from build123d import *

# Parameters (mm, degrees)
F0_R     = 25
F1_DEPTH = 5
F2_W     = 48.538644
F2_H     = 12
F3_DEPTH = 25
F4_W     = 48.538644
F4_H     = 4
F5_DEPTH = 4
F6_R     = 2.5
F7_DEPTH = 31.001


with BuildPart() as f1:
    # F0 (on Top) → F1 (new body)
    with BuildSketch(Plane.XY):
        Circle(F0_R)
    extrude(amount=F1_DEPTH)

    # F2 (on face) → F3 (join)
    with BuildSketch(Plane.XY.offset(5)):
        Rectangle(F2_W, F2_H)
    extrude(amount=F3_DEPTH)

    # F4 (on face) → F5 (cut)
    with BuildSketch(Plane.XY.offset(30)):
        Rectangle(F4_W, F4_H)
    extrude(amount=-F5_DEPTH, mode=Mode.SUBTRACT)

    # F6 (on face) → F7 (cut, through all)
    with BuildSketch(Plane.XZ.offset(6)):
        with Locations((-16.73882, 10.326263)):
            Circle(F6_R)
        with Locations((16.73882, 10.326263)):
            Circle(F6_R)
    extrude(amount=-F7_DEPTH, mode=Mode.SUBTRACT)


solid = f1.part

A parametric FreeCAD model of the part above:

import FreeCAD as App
import Part
import Sketcher

V = App.Vector


def add_polygon(sketch, points):
    """Adds a closed chain of lines whose ends are joined by coincident constraints."""
    first, n = sketch.GeometryCount, len(points)
    for a, b in zip(points, points[1:] + points[:1]):
        sketch.addGeometry(Part.LineSegment(App.Vector(*a, 0), App.Vector(*b, 0)), False)
    for i in range(n):
        sketch.addConstraint(Sketcher.Constraint("Coincident", first + i, 2, first + (i + 1) % n, 1))

doc = App.newDocument("Part")
params = doc.addObject("Spreadsheet::Sheet", "Params")
for row, (alias, value) in enumerate([
    ("sketch1_diameter", "50 mm"),
    ("pad1_length", "5 mm"),
    ("sketch2_height", "12 mm"),
    ("pad2_length", "25 mm"),
    ("sketch3_height", "4 mm"),
    ("pocket1_length", "4 mm"),
    ("sketch4_diameter", "5 mm"),
], start=1):
    params.set(f"A{row}", alias)
    params.set(f"B{row}", "=" + value)
    params.setAlias(f"B{row}", alias)

body = doc.addObject("PartDesign::Body", "Body")

sketch1 = body.newObject("Sketcher::SketchObject", "Sketch")
sketch1.AttachmentSupport = (doc.getObject("XY_Plane"), [""])
sketch1.MapMode = "FlatFace"
sketch1.addGeometry(Part.Circle(V(0, 0, 0), V(0, 0, 1), 25), False)
sketch1.addConstraint([
    Sketcher.Constraint("Coincident", 0, 3, -1, 1),
    Sketcher.Constraint("Diameter", 0, 50.0),
])
sketch1.setExpression("Constraints[1]", "Params.sketch1_diameter")
pad1 = body.newObject("PartDesign::Pad", "Pad")
pad1.Profile = sketch1
pad1.setExpression("Length", "Params.pad1_length")

sketch2 = body.newObject("Sketcher::SketchObject", "Sketch001")
sketch2.AttachmentSupport = (doc.getObject("XY_Plane"), [""])
sketch2.MapMode = "FlatFace"
sketch2.AttachmentOffset = App.Placement(V(0, 0, 5), App.Rotation())
add_polygon(sketch2, [(-24.269322, 6), (-24.269322, -6), (24.269322, -6), (24.269322, 6)])
sketch2.addConstraint([
    Sketcher.Constraint("Vertical", 0),
    Sketcher.Constraint("Horizontal", 1),
    Sketcher.Constraint("Vertical", 2),
    Sketcher.Constraint("Horizontal", 3),
    Sketcher.Constraint("Symmetric", 0, 2, 2, 2, -1, 1),
    Sketcher.Constraint("DistanceY", 0, 2, 0, 1, 12.0),
    Sketcher.Constraint("DistanceX", 1, 1, 1, 2, 48.538644),
])
sketch2.setExpression("Constraints[9]", "Params.sketch2_height")
pad2 = body.newObject("PartDesign::Pad", "Pad001")
pad2.Profile = sketch2
pad2.setExpression("Length", "Params.pad2_length")

sketch3 = body.newObject("Sketcher::SketchObject", "Sketch002")
sketch3.AttachmentSupport = (doc.getObject("XY_Plane"), [""])
sketch3.MapMode = "FlatFace"
sketch3.AttachmentOffset = App.Placement(V(0, 0, 30), App.Rotation())
add_polygon(sketch3, [(-24.269322, 2), (-24.269322, -2), (24.269322, -2), (24.269322, 2)])
sketch3.addConstraint([
    Sketcher.Constraint("Vertical", 0),
    Sketcher.Constraint("Horizontal", 1),
    Sketcher.Constraint("Vertical", 2),
    Sketcher.Constraint("Horizontal", 3),
    Sketcher.Constraint("Symmetric", 0, 2, 2, 2, -1, 1),
    Sketcher.Constraint("DistanceY", 0, 2, 0, 1, 4.0),
    Sketcher.Constraint("DistanceX", 1, 1, 1, 2, 48.538644),
])
sketch3.setExpression("Constraints[9]", "Params.sketch3_height")
pocket1 = body.newObject("PartDesign::Pocket", "Pocket")
pocket1.Profile = sketch3
pocket1.setExpression("Length", "Params.pocket1_length")

sketch4 = body.newObject("Sketcher::SketchObject", "Sketch003")
sketch4.AttachmentSupport = (doc.getObject("XZ_Plane"), [""])
sketch4.MapMode = "FlatFace"
sketch4.AttachmentOffset = App.Placement(V(0, 0, 6), App.Rotation())
sketch4.addGeometry([
    Part.Circle(V(-16.73882, 10.326263, 0), V(0, 0, 1), 2.5),
    Part.Circle(V(16.73882, 10.326263, 0), V(0, 0, 1), 2.5),
], False)
sketch4.addConstraint([
    Sketcher.Constraint("Equal", 0, 1),
    Sketcher.Constraint("Symmetric", 0, 3, 1, 3, -2),
    Sketcher.Constraint("Diameter", 0, 5.0),
    Sketcher.Constraint("DistanceX", 0, 3, -1, 1, 16.73882),
    Sketcher.Constraint("DistanceY", -1, 1, 0, 3, 10.326263),
])
sketch4.setExpression("Constraints[2]", "Params.sketch4_diameter")
pocket2 = body.newObject("PartDesign::Pocket", "Pocket001")
pocket2.Profile = sketch4
pocket2.Type = "ThroughAll"

doc.recompute()
